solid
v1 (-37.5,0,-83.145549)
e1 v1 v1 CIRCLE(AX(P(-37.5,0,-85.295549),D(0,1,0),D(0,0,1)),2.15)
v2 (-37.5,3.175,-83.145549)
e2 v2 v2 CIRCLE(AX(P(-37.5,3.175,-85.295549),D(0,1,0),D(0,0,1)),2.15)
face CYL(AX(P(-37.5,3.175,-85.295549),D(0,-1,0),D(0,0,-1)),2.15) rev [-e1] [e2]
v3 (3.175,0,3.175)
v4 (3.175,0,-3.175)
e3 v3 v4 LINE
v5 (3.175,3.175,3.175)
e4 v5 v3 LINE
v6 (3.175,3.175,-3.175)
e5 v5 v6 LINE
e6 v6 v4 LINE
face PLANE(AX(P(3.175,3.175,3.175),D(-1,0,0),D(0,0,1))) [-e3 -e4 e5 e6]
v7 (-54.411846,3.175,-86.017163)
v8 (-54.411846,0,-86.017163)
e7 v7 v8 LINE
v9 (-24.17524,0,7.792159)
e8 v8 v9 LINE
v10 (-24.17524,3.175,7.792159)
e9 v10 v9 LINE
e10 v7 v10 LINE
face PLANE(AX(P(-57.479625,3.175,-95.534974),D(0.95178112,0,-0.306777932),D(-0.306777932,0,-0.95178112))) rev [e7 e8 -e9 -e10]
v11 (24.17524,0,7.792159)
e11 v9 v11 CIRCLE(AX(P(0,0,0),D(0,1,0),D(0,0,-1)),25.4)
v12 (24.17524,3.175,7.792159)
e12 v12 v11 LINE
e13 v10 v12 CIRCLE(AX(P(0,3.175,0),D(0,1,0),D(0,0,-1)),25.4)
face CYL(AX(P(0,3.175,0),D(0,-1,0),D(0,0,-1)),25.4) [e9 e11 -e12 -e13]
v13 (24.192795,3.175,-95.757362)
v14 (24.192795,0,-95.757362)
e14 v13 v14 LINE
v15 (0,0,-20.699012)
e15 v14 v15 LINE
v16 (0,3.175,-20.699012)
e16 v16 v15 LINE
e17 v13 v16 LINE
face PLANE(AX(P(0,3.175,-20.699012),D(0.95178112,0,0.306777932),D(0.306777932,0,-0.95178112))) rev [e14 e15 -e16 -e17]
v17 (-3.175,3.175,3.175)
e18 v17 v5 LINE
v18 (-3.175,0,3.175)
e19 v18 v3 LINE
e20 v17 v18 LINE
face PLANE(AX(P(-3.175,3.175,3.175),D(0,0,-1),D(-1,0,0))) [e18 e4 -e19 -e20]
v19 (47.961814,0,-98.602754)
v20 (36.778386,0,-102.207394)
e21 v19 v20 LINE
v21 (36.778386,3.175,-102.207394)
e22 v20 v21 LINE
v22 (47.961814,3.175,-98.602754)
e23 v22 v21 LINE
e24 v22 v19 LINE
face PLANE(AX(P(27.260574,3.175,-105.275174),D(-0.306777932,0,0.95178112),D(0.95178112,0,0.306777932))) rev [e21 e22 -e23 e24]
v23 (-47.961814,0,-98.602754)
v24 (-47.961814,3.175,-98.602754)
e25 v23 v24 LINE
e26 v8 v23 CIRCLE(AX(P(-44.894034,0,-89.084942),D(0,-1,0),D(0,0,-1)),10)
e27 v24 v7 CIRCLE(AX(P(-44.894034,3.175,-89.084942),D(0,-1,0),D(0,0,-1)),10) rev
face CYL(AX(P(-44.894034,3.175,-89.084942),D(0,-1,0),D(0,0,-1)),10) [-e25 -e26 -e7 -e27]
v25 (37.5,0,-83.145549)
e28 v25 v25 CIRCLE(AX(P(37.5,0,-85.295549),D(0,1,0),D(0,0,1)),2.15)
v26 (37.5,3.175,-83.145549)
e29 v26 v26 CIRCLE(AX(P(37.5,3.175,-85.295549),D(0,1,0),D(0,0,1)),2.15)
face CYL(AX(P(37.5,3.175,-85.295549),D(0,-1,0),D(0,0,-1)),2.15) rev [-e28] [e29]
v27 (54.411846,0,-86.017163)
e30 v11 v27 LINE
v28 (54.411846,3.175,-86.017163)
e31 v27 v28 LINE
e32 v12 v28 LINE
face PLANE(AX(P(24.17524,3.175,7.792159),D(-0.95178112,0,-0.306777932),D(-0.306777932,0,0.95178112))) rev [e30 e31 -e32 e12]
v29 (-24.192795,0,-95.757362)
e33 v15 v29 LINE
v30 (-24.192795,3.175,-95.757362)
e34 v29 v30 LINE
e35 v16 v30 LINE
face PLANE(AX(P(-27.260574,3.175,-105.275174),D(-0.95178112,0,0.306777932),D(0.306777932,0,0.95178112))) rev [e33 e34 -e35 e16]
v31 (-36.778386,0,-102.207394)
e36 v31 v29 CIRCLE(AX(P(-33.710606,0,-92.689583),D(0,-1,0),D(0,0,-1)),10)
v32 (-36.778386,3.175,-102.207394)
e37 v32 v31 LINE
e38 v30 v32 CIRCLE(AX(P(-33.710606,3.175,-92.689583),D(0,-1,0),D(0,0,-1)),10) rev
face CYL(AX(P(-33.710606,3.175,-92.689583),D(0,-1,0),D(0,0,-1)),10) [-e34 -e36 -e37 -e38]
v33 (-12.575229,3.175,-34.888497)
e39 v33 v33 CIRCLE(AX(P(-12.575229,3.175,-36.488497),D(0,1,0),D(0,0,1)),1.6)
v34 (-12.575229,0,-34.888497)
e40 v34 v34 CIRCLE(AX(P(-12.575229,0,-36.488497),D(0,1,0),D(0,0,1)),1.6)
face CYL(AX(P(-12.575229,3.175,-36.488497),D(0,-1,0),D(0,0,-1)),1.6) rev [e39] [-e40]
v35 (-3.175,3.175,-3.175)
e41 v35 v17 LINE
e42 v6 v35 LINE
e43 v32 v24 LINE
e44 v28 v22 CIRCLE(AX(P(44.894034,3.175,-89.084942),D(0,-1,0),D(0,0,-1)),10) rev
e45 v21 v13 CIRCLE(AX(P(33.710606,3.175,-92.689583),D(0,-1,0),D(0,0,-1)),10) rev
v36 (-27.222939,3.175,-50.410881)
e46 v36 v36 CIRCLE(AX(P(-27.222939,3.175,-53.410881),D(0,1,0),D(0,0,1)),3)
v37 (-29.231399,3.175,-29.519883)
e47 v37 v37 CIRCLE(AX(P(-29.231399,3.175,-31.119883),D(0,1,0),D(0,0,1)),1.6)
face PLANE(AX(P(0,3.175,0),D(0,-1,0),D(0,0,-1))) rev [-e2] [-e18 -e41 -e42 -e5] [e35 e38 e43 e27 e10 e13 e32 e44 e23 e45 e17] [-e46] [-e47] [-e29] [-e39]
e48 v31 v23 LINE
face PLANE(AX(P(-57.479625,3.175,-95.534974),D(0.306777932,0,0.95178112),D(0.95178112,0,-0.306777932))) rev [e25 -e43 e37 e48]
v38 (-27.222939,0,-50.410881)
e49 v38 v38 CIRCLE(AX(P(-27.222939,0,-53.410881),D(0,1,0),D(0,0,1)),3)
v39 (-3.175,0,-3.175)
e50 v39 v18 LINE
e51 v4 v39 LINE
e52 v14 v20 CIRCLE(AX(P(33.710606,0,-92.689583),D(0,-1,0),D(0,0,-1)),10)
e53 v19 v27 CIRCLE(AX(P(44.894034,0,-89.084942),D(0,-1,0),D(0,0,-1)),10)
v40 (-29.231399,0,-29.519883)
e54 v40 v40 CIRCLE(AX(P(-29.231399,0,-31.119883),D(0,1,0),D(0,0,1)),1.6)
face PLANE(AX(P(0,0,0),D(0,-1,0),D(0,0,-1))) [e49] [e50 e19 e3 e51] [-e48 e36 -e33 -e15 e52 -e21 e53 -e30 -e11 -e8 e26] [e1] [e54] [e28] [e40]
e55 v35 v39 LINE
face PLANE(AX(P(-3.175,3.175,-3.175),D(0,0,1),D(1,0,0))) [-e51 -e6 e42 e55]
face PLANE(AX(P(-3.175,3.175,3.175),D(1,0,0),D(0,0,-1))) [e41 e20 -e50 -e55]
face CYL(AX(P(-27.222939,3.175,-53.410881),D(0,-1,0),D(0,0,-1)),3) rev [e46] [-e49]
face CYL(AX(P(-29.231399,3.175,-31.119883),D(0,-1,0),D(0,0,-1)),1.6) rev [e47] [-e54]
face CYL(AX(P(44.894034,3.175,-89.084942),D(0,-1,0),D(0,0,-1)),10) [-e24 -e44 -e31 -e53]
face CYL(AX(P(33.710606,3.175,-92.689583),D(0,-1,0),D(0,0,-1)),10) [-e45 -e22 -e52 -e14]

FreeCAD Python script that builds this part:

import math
import FreeCAD as App
import Part
import Sketcher
Q = App.Units.Quantity


def edges_at(feature, points):
    """Names of the edges that pass closest to the given points."""
    edges = feature.Shape.Edges
    near = lambda p: min(range(len(edges)), key=lambda i: edges[i].distToShape(Part.Vertex(*p))[0])
    return sorted({f"Edge{near(p) + 1}" for p in points})

doc = App.newDocument("Part")
params = doc.addObject("Spreadsheet::Sheet", "Params")
for row, (alias, value) in enumerate([
    ("sketch1_diameter", "6 mm"),
    ("sketch1_diameter2", "3.2 mm"),
    ("sketch1_diameter3", "4.3 mm"),
    ("sketch1_radius", "25.4 mm"),
    ("sketch1_width", "6.35 mm"),
    ("pad1_length", "3.175 mm"),
    ("fillet_radius", "10 mm"),
], start=1):
    params.set(f"A{row}", alias)
    params.set(f"B{row}", "=" + value)
    params.setAlias(f"B{row}", alias)

body = doc.addObject("PartDesign::Body", "Body")

# Sketch on XZ plane
sketch1 = body.newObject("Sketcher::SketchObject", "Sketch")
sketch1.AttachmentSupport = (doc.getObject("XZ_Plane"), [""])
sketch1.MapMode = "FlatFace"
sketch1.addGeometry(Part.LineSegment(App.Vector(-57.479625, -95.534974, 0), App.Vector(-24.17524, 7.792159, 0)), False)
sketch1.addGeometry(Part.ArcOfCircle(Part.Circle(App.Vector(0, 0, 0), App.Vector(0, 0, 1), 25.4), math.radians(17.865161), math.radians(162.134839)), False)
sketch1.addGeometry(Part.LineSegment(App.Vector(24.17524, 7.792159, 0), App.Vector(57.479625, -95.534974, 0)), False)
sketch1.addGeometry(Part.LineSegment(App.Vector(57.479625, -95.534974, 0), App.Vector(27.260574, -105.275174, 0)), False)
sketch1.addGeometry(Part.LineSegment(App.Vector(27.260574, -105.275174, 0), App.Vector(0, -20.699012, 0)), False)
sketch1.addGeometry(Part.LineSegment(App.Vector(0, -20.699012, 0), App.Vector(-27.260574, -105.275174, 0)), False)
sketch1.addGeometry(Part.LineSegment(App.Vector(-27.260574, -105.275174, 0), App.Vector(-57.479625, -95.534974, 0)), False)
sketch1.addGeometry(Part.Circle(App.Vector(-29.231399, -31.119883, 0), App.Vector(0, 0, 1), 1.6), False)
sketch1.addGeometry(Part.Circle(App.Vector(-12.575229, -36.488497, 0), App.Vector(0, 0, 1), 1.6), False)
sketch1.addGeometry(Part.LineSegment(App.Vector(3.175, 3.175, 0), App.Vector(-3.175, 3.175, 0)), False)
sketch1.addGeometry(Part.LineSegment(App.Vector(-3.175, 3.175, 0), App.Vector(-3.175, -3.175, 0)), False)
sketch1.addGeometry(Part.LineSegment(App.Vector(-3.175, -3.175, 0), App.Vector(3.175, -3.175, 0)), False)
sketch1.addGeometry(Part.LineSegment(App.Vector(3.175, -3.175, 0), App.Vector(3.175, 3.175, 0)), False)
sketch1.addGeometry(Part.Circle(App.Vector(-27.222939, -53.410881, 0), App.Vector(0, 0, 1), 3), False)
sketch1.addGeometry(Part.Circle(App.Vector(-37.5, -85.295549, 0), App.Vector(0, 0, 1), 2.15), False)
sketch1.addGeometry(Part.Circle(App.Vector(37.5, -85.295549, 0), App.Vector(0, 0, 1), 2.15), False)
sketch1.addConstraint(Sketcher.Constraint("Tangent", 0, 2, 1, 2))
sketch1.addConstraint(Sketcher.Constraint("Tangent", 1, 1, 2, 1))
sketch1.addConstraint(Sketcher.Constraint("Coincident", 2, 2, 3, 1))
sketch1.addConstraint(Sketcher.Constraint("Coincident", 3, 2, 4, 1))
sketch1.addConstraint(Sketcher.Constraint("Coincident", 4, 2, 5, 1))
sketch1.addConstraint(Sketcher.Constraint("Coincident", 5, 2, 6, 1))
sketch1.addConstraint(Sketcher.Constraint("Coincident", 6, 2, 0, 1))
sketch1.addConstraint(Sketcher.Constraint("Coincident", 9, 2, 10, 1))
sketch1.addConstraint(Sketcher.Constraint("Coincident", 10, 2, 11, 1))
sketch1.addConstraint(Sketcher.Constraint("Coincident", 11, 2, 12, 1))
sketch1.addConstraint(Sketcher.Constraint("Coincident", 12, 2, 9, 1))
sketch1.addConstraint(Sketcher.Constraint("Horizontal", 9))
sketch1.addConstraint(Sketcher.Constraint("Vertical", 10))
sketch1.addConstraint(Sketcher.Constraint("Horizontal", 11))
sketch1.addConstraint(Sketcher.Constraint("Vertical", 12))
sketch1.addConstraint(Sketcher.Constraint("Coincident", 1, 3, -1, 1))
sketch1.addConstraint(Sketcher.Constraint("Equal", 7, 8))
sketch1.addConstraint(Sketcher.Constraint("Equal", 14, 15))
sketch1.addConstraint(Sketcher.Constraint("Symmetric", 9, 2, 11, 2, -1, 1))
sketch1.addConstraint(Sketcher.Constraint("Symmetric", 14, 3, 15, 3, -2))
sketch1.addConstraint(Sketcher.Constraint("Symmetric", 3, 2, 5, 2, -2))
sketch1.addConstraint(Sketcher.Constraint("Symmetric", 2, 2, 6, 2, -2))
sketch1.addConstraint(Sketcher.Constraint("PointOnObject", 4, 2, -2))
sketch1.addConstraint(Sketcher.Constraint("Perpendicular", 2, 3))
sketch1.addConstraint(Sketcher.Constraint("Perpendicular", 3, 4))
sketch1.addConstraint(Sketcher.Constraint("Equal", 11, 10))
sketch1.addConstraint(Sketcher.Constraint("Diameter", 13, Q("6 mm")))
sketch1.addConstraint(Sketcher.Constraint("Diameter", 7, Q("3.2 mm")))
sketch1.addConstraint(Sketcher.Constraint("Diameter", 14, Q("4.3 mm")))
sketch1.addConstraint(Sketcher.Constraint("Radius", 1, Q("25.4 mm")))
sketch1.addConstraint(Sketcher.Constraint("DistanceX", 14, 3, 15, 3, Q("75 mm")))
sketch1.addConstraint(Sketcher.Constraint("DistanceX", 9, 2, 9, 1, Q("6.35 mm")))
sketch1.addConstraint(Sketcher.Constraint("Distance", 3, Q("31.75 mm")))
sketch1.addConstraint(Sketcher.Constraint("DistanceX", 7, 3, -1, 1, Q("29.231399 mm")))
sketch1.addConstraint(Sketcher.Constraint("DistanceX", 13, 3, 0, 2, Q("3.047699 mm")))
sketch1.addConstraint(Sketcher.Constraint("DistanceY", 3, 2, 2, 2, Q("9.740199 mm")))
sketch1.addConstraint(Sketcher.Constraint("DistanceX", 8, 3, -1, 1, Q("12.575229 mm")))
sketch1.addConstraint(Sketcher.Constraint("DistanceY", 13, 3, -1, 1, Q("53.410881 mm")))
sketch1.addConstraint(Sketcher.Constraint("DistanceY", 14, 3, -1, 1, Q("85.295549 mm")))
sketch1.addConstraint(Sketcher.Constraint("DistanceY", 14, 3, 8, 3, Q("48.807052 mm")))
sketch1.addConstraint(Sketcher.Constraint("DistanceY", 2, 2, 7, 3, Q("64.415091 mm")))
sketch1.addConstraint(Sketcher.Constraint("DistanceY", 7, 3, 4, 2, Q("10.420871 mm")))
sketch1.setExpression("Constraints[26]", "Params.sketch1_diameter")
sketch1.setExpression("Constraints[27]", "Params.sketch1_diameter2")
sketch1.setExpression("Constraints[28]", "Params.sketch1_diameter3")
sketch1.setExpression("Constraints[29]", "Params.sketch1_radius")
sketch1.setExpression("Constraints[31]", "Params.sketch1_width")
pad1 = body.newObject("PartDesign::Pad", "Pad")
pad1.Profile = sketch1
pad1.setExpression("Length", "Params.pad1_length")
pad1.Reversed = True
doc.recompute()

fillet = body.newObject("PartDesign::Fillet", "Fillet")
fillet.Base = (pad1, edges_at(pad1, [
    (-27.261, 1.587, -105.275),
    (27.261, 1.587, -105.275),
    (57.48, 1.587, -95.535),
    (-57.48, 1.587, -95.535),
]))
fillet.setExpression("Radius", "Params.fillet_radius")

doc.recompute()
